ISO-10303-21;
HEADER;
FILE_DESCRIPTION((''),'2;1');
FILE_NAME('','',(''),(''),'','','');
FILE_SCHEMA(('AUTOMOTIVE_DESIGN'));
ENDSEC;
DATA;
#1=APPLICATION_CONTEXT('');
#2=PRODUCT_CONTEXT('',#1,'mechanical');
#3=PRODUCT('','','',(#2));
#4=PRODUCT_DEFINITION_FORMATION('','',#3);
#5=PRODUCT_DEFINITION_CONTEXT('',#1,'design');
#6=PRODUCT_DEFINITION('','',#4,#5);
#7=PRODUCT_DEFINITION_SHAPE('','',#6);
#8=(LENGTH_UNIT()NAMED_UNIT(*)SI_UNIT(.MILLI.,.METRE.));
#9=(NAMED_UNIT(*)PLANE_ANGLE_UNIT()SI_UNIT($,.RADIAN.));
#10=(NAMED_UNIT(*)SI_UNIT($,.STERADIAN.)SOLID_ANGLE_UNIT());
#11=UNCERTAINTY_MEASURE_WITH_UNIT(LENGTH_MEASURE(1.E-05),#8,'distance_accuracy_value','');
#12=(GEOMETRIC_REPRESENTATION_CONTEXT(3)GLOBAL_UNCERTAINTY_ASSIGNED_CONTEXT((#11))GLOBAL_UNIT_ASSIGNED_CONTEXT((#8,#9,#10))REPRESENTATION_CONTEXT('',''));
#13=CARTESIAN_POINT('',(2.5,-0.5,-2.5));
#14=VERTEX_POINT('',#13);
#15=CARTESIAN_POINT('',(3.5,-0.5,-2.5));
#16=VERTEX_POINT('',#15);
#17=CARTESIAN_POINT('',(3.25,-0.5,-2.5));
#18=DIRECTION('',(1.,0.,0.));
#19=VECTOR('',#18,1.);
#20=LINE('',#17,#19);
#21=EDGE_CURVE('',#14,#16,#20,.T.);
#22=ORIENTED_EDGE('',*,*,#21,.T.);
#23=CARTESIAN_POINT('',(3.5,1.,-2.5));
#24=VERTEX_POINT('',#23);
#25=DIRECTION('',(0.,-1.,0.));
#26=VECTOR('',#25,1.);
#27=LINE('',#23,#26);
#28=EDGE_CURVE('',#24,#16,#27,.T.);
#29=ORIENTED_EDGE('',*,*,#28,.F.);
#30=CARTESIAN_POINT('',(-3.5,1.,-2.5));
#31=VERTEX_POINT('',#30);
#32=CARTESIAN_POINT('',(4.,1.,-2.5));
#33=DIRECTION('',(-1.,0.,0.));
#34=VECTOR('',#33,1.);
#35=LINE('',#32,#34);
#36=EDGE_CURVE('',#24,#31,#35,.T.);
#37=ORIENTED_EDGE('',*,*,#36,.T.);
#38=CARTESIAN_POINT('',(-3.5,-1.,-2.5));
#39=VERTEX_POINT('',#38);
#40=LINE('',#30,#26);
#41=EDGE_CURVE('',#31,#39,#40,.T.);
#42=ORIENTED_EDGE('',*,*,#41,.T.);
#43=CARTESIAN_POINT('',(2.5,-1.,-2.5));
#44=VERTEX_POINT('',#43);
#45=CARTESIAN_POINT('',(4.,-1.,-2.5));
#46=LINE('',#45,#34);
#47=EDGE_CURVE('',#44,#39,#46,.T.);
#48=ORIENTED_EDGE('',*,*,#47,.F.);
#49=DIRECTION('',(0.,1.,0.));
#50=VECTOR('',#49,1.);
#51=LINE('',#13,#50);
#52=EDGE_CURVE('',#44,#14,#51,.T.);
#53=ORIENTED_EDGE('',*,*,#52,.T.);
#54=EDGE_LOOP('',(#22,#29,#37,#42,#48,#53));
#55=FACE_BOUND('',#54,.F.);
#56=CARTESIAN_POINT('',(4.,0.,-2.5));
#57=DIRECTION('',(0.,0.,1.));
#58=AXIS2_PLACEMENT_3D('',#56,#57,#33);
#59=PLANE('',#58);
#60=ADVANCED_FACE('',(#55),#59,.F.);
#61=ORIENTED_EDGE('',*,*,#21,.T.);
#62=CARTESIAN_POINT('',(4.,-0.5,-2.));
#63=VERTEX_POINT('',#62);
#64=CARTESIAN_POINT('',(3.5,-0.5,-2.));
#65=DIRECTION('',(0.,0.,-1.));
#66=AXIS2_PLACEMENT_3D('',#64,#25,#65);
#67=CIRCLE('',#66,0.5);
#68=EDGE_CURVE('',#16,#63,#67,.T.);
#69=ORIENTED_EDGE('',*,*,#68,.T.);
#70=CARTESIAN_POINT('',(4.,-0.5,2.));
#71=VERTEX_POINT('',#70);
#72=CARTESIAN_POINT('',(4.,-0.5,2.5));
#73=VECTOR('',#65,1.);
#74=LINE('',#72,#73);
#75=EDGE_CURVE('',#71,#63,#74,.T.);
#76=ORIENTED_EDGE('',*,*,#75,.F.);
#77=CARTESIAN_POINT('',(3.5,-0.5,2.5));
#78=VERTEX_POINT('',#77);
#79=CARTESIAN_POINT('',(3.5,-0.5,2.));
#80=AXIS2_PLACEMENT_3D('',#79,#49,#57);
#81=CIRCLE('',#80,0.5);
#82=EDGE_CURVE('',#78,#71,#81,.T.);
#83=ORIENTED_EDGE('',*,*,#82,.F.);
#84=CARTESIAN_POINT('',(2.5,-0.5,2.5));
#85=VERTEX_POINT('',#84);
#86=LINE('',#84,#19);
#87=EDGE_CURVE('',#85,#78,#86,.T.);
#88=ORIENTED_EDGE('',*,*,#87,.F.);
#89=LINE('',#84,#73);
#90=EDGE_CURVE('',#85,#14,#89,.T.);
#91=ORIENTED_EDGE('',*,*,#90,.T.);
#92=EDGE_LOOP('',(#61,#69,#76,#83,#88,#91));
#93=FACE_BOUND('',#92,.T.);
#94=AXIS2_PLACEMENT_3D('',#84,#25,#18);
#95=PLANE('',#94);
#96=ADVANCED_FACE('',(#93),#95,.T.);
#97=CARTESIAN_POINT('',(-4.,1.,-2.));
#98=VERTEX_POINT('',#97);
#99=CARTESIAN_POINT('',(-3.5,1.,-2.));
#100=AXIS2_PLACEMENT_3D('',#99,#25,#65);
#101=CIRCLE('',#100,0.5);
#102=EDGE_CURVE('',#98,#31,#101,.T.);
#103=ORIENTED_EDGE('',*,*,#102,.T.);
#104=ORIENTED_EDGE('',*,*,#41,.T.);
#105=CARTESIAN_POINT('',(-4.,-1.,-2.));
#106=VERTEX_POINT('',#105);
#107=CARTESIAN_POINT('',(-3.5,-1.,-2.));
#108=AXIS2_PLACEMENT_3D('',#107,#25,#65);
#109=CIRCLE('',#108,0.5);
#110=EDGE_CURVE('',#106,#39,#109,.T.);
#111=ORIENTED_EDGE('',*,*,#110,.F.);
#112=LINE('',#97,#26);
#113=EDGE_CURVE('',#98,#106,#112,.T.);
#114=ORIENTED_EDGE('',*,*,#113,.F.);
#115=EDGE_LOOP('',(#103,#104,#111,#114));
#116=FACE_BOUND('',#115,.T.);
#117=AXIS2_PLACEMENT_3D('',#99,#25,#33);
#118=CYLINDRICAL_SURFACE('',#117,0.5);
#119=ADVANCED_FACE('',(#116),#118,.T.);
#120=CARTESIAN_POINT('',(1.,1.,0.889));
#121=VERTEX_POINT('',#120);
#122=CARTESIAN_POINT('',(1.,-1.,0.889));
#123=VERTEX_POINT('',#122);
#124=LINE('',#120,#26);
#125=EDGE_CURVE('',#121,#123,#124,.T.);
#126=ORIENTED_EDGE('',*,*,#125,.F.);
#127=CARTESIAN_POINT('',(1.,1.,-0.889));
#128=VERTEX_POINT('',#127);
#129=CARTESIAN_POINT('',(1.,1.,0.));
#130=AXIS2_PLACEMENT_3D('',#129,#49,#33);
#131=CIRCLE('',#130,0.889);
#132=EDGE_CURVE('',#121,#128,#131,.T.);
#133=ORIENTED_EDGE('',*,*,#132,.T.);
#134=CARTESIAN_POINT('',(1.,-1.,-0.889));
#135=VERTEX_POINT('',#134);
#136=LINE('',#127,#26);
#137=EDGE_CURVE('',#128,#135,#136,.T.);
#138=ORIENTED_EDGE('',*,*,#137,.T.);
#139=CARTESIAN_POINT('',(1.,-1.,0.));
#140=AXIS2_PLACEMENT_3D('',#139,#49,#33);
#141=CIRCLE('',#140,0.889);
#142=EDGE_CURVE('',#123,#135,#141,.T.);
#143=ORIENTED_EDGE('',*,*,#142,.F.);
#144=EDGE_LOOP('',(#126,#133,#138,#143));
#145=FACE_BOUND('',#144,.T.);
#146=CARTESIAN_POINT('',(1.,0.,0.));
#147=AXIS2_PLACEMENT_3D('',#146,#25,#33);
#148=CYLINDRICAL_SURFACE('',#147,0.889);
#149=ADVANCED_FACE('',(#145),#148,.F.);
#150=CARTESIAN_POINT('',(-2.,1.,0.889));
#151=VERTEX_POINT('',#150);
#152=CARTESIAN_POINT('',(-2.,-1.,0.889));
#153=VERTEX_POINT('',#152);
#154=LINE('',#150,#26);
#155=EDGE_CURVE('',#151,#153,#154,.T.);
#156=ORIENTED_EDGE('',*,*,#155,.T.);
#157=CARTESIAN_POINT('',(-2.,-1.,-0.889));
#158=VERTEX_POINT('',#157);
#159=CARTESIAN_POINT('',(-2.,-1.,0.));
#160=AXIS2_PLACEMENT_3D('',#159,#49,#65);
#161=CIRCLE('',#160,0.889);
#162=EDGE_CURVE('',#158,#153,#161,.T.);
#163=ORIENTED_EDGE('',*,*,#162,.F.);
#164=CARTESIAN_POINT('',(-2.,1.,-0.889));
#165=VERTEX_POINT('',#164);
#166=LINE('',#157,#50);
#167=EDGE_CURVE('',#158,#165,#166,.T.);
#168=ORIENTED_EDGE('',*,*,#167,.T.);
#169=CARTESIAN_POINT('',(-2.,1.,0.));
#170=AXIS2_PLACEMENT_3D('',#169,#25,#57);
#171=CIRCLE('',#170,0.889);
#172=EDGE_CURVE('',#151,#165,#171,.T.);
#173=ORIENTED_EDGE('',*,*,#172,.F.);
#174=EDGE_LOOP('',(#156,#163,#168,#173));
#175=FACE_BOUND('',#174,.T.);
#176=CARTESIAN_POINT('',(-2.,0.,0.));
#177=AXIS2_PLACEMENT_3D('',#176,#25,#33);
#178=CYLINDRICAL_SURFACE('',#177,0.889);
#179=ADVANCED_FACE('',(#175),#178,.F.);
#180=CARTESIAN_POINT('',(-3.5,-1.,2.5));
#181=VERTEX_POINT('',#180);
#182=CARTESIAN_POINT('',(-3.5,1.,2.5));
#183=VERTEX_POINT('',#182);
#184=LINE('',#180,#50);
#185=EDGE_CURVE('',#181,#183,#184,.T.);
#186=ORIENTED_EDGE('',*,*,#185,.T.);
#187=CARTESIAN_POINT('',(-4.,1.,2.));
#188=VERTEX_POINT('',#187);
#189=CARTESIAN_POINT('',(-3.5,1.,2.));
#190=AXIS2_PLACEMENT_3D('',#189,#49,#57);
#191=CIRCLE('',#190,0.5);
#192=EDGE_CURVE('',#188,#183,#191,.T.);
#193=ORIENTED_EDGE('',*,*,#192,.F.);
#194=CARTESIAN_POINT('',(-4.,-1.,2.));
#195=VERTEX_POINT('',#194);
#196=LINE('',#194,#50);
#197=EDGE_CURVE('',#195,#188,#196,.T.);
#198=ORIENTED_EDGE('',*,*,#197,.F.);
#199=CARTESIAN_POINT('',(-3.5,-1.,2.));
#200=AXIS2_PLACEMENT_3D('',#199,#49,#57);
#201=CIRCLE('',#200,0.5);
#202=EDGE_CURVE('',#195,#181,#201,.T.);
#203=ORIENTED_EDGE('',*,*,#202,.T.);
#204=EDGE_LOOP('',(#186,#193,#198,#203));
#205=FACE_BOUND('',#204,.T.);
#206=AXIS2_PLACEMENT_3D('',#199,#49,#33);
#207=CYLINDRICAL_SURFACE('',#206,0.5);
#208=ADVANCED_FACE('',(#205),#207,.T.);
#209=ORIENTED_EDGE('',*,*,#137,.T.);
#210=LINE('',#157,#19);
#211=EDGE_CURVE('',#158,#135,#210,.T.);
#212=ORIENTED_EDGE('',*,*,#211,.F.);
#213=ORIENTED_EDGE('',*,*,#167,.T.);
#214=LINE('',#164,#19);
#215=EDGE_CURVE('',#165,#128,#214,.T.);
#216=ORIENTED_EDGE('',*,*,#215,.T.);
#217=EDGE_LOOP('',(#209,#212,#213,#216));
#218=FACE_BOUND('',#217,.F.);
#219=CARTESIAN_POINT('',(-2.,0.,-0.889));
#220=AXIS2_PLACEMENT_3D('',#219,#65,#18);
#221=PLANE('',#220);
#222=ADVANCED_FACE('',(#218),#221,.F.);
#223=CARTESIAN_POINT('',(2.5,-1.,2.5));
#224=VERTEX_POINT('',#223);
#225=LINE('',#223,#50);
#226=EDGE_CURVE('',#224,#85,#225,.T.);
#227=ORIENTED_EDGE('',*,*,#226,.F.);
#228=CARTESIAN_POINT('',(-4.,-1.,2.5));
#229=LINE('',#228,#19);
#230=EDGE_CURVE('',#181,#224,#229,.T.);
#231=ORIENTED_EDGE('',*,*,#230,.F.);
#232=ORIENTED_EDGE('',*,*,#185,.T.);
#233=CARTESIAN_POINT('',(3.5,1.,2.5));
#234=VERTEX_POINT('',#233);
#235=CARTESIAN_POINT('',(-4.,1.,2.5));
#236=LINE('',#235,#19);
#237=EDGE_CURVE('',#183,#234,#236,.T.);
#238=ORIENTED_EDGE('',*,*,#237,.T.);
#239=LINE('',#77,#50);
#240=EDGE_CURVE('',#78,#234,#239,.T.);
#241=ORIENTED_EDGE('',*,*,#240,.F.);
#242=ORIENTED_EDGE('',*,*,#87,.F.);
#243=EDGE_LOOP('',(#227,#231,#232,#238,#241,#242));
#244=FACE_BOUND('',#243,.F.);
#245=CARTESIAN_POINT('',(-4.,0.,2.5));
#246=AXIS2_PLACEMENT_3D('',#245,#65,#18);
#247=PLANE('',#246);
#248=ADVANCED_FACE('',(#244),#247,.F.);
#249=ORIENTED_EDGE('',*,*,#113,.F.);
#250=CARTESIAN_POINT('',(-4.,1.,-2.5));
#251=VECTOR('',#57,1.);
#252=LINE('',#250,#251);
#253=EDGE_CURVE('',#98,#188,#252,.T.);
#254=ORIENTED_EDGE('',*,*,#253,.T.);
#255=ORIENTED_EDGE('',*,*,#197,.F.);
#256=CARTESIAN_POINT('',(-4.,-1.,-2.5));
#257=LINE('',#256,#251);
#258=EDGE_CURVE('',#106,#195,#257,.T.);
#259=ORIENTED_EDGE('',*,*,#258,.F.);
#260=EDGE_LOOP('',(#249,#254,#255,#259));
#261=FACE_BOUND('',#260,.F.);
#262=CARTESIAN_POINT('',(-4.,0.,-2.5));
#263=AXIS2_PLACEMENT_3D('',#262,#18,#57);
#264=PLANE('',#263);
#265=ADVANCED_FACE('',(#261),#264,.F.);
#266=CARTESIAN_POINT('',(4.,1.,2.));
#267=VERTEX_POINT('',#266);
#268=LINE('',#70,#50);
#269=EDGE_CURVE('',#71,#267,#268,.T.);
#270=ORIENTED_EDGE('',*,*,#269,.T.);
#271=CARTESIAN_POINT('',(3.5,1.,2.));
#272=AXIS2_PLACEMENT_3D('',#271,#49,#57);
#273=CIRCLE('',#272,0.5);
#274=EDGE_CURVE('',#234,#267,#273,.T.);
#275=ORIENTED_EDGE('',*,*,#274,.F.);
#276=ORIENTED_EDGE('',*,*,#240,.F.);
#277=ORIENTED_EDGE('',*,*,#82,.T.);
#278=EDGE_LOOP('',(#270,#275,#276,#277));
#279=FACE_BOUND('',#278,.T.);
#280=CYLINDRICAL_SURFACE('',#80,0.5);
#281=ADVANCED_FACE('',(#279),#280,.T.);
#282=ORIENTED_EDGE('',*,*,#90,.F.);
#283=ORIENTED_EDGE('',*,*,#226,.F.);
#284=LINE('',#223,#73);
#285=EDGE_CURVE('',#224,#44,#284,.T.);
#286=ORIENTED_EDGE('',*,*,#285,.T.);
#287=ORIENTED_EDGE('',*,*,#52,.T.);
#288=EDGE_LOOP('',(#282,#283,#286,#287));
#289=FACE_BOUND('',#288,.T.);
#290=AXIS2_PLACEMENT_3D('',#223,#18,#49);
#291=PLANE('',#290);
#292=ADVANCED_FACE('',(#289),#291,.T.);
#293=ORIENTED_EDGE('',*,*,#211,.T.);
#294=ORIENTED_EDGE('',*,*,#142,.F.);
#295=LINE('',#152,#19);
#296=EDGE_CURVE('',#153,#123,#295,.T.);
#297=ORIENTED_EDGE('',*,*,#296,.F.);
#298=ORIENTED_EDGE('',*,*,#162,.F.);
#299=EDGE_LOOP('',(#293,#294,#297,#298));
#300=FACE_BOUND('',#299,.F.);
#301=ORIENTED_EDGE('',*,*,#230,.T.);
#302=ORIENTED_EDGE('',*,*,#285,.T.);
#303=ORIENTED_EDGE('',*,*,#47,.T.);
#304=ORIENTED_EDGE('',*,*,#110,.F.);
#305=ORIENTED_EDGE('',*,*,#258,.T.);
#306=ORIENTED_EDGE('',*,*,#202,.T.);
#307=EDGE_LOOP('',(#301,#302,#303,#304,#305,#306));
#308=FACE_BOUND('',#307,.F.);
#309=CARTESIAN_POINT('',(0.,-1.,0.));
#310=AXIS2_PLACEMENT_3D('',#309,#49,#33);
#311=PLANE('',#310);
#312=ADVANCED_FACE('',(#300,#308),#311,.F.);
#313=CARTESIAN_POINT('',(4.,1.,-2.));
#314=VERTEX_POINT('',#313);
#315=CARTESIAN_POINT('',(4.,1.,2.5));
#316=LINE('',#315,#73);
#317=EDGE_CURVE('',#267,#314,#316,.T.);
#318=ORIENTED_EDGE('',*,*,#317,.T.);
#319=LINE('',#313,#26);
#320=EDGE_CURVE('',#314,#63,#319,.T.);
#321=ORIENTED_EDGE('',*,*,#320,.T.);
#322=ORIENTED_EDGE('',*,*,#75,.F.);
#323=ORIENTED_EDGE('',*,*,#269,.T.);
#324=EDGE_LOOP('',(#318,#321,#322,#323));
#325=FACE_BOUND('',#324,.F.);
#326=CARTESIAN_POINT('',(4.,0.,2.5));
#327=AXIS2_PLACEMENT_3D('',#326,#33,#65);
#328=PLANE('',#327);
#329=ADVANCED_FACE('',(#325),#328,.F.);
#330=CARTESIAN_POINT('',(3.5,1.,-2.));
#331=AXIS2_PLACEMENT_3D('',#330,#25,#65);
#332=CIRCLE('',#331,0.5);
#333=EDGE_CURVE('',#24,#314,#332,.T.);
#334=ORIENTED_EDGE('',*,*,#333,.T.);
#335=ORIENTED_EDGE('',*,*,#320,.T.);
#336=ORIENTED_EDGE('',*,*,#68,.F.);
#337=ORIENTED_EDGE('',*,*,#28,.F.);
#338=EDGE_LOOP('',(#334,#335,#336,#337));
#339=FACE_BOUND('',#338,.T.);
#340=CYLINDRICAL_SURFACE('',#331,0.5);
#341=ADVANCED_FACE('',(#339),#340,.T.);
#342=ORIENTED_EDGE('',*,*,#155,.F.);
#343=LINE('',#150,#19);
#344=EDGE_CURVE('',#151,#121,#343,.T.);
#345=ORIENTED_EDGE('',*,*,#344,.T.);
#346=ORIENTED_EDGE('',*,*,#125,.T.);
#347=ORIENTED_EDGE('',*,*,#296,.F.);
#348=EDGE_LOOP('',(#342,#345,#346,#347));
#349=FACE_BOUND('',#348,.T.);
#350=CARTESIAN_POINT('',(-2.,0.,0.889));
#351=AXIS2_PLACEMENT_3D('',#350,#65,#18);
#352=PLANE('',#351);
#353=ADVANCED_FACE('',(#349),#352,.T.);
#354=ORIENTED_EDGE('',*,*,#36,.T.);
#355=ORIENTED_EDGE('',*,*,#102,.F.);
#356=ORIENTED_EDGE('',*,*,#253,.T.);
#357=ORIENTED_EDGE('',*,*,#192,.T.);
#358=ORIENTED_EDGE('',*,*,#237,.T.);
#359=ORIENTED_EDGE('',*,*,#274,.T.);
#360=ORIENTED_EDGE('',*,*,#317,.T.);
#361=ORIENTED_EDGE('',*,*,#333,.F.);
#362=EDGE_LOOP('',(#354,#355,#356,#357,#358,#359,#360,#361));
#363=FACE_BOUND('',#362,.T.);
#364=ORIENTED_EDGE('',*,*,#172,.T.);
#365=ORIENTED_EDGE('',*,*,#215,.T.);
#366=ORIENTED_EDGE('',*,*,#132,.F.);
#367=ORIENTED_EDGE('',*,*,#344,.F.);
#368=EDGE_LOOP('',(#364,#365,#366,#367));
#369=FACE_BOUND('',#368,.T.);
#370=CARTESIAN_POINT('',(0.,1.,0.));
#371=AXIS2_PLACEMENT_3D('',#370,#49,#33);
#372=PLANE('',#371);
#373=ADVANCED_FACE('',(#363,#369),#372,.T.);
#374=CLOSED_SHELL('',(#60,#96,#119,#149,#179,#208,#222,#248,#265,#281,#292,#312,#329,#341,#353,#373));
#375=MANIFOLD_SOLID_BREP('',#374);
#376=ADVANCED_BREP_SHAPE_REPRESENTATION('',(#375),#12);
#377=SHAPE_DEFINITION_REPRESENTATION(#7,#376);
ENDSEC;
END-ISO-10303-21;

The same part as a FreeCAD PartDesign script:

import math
import FreeCAD as App
import Part
import Sketcher

V = App.Vector
Q = App.Units.Quantity


def edges_at(feature, points):
    """Names of the edges that pass closest to the given points."""
    edges = feature.Shape.Edges
    near = lambda p: min(range(len(edges)), key=lambda i: edges[i].distToShape(Part.Vertex(*p))[0])
    return sorted({f"Edge{near(p) + 1}" for p in points})


def add_polygon(sketch, points):
    """Adds a closed chain of lines whose ends are joined by coincident constraints."""
    first, n = sketch.GeometryCount, len(points)
    for a, b in zip(points, points[1:] + points[:1]):
        sketch.addGeometry(Part.LineSegment(App.Vector(*a, 0), App.Vector(*b, 0)), False)
    for i in range(n):
        sketch.addConstraint(Sketcher.Constraint("Coincident", first + i, 2, first + (i + 1) % n, 1))

doc = App.newDocument("Part")
body = doc.addObject("PartDesign::Body", "Body")

# Sketch on XZ plane
sketch1 = body.newObject("Sketcher::SketchObject", "Sketch")
sketch1.AttachmentSupport = (doc.getObject("XZ_Plane"), [""])
sketch1.MapMode = "FlatFace"
add_polygon(sketch1, [(-4, -2.5), (-4, 2.5), (4, 2.5), (4, -2.5)])  # lines 0-3
sketch1.addGeometry(Part.ArcOfCircle(Part.Circle(V(-2, 0, 0), V(0, 0, 1), 0.9), math.radians(90), math.radians(270)), False)  # 4
sketch1.addGeometry(Part.LineSegment(V(-2, -0.9, 0), V(1, -0.9, 0)), False)  # 5
sketch1.addGeometry(Part.ArcOfCircle(Part.Circle(V(1, 0, 0), V(0, 0, 1), 0.9), math.radians(-90), math.radians(90)), False)  # 6
sketch1.addGeometry(Part.LineSegment(V(1, 0.9, 0), V(-2, 0.9, 0)), False)  # 7
sketch1.addConstraint([
    Sketcher.Constraint("Tangent", 4, 2, 5, 1),
    Sketcher.Constraint("Tangent", 5, 2, 6, 1),
    Sketcher.Constraint("Tangent", 6, 2, 7, 1),
    Sketcher.Constraint("Tangent", 7, 2, 4, 1),
    Sketcher.Constraint("Vertical", 0),
    Sketcher.Constraint("Horizontal", 1),
    Sketcher.Constraint("Vertical", 2),
    Sketcher.Constraint("Horizontal", 3),
    Sketcher.Constraint("Horizontal", 5),
    Sketcher.Constraint("Horizontal", 7),
    Sketcher.Constraint("Symmetric", 0, 2, 2, 2, -1, 1),
    Sketcher.Constraint("PointOnObject", 4, 3, -1),
    Sketcher.Constraint("DistanceX", 1, 1, 1, 2, Q("8 mm")),
    Sketcher.Constraint("DistanceX", 5, 1, 5, 2, Q("3 mm")),
    Sketcher.Constraint("DistanceY", 0, 1, 0, 2, Q("5 mm")),
    Sketcher.Constraint("DistanceX", 4, 3, -1, 1, Q("2 mm")),
    Sketcher.Constraint("Radius", 4, Q("0.889 mm")),
])
pad1 = body.newObject("PartDesign::Pad", "Pad")
pad1.Profile = sketch1
pad1.Length = 2
pad1.Midplane = True

# Sketch on XY plane
sketch2 = body.newObject("Sketcher::SketchObject", "Sketch001")
sketch2.AttachmentSupport = (doc.getObject("XY_Plane"), [""])
sketch2.MapMode = "FlatFace"
sketch2.AttachmentOffset = App.Placement(V(0, 0, 2.5), App.Rotation())
add_polygon(sketch2, [(2.5, -1), (4, -1), (4, -0.5), (2.5, -0.5)])  # lines 0-3
sketch2.addConstraint([
    Sketcher.Constraint("Horizontal", 0),
    Sketcher.Constraint("Vertical", 1),
    Sketcher.Constraint("Horizontal", 2),
    Sketcher.Constraint("Vertical", 3),
    Sketcher.Constraint("DistanceX", 0, 1, 0, 2, Q("1.5 mm")),
    Sketcher.Constraint("DistanceY", 1, 1, 1, 2, Q("0.5 mm")),
    Sketcher.Constraint("DistanceY", 1, 2, -1, 1, Q("0.5 mm")),
    Sketcher.Constraint("DistanceX", -1, 1, 0, 2, Q("4 mm")),
])
pocket1 = body.newObject("PartDesign::Pocket", "Pocket")
pocket1.Profile = sketch2
pocket1.Type = "ThroughAll"
doc.recompute()

fillet = body.newObject("PartDesign::Fillet", "Fillet")
fillet.Base = (pocket1, edges_at(pocket1, [
    (-4, 0, 2.5),
    (-4, 0, -2.5),
    (4, 0.25, 2.5),
    (4, 0.25, -2.5),
]))
fillet.Radius = 0.5

doc.recompute()
